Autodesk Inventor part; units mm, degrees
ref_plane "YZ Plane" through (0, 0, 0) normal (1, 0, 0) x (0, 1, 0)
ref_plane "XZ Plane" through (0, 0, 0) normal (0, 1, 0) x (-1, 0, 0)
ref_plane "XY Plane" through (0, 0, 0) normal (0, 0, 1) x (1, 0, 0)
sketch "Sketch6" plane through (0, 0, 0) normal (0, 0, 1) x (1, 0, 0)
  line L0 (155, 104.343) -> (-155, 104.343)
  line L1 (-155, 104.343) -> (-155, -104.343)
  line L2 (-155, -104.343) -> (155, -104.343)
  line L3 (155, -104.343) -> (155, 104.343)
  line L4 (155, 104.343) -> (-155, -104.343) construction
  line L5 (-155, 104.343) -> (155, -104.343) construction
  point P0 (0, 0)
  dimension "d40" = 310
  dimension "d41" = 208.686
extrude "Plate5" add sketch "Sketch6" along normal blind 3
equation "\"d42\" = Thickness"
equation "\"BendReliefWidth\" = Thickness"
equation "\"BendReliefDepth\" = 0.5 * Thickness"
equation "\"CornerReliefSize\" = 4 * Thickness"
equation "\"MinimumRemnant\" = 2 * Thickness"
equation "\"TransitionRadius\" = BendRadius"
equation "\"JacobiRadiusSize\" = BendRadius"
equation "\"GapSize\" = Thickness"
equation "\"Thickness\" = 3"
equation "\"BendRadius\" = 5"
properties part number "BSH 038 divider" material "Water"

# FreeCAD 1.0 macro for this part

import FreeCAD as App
import Part
import Sketcher
Q = App.Units.Quantity


def add_polygon(sketch, points):
    """Adds a closed chain of lines whose ends are joined by coincident constraints."""
    first, n = sketch.GeometryCount, len(points)
    for a, b in zip(points, points[1:] + points[:1]):
        sketch.addGeometry(Part.LineSegment(App.Vector(*a, 0), App.Vector(*b, 0)), False)
    for i in range(n):
        sketch.addConstraint(Sketcher.Constraint("Coincident", first + i, 2, first + (i + 1) % n, 1))

doc = App.newDocument("Part")
body = doc.addObject("PartDesign::Body", "Body")

sketch1 = body.newObject("Sketcher::SketchObject", "Sketch")
sketch1.AttachmentSupport = (doc.getObject("XY_Plane"), [""])
sketch1.MapMode = "FlatFace"
add_polygon(sketch1, [(155, -104), (155, 104), (-155, 104), (-155, -104)])
sketch1.addConstraint([
    Sketcher.Constraint("Vertical", 0),
    Sketcher.Constraint("Horizontal", 1),
    Sketcher.Constraint("Vertical", 2),
    Sketcher.Constraint("Horizontal", 3),
    Sketcher.Constraint("Symmetric", 0, 2, 2, 2, -1, 1),
    Sketcher.Constraint("DistanceX", 1, 2, 1, 1, Q("310 mm")),
    Sketcher.Constraint("DistanceY", 0, 1, 0, 2, Q("208.686 mm")),
])
pad1 = body.newObject("PartDesign::Pad", "Pad")
pad1.Profile = sketch1
pad1.Length = 3

doc.recompute()
